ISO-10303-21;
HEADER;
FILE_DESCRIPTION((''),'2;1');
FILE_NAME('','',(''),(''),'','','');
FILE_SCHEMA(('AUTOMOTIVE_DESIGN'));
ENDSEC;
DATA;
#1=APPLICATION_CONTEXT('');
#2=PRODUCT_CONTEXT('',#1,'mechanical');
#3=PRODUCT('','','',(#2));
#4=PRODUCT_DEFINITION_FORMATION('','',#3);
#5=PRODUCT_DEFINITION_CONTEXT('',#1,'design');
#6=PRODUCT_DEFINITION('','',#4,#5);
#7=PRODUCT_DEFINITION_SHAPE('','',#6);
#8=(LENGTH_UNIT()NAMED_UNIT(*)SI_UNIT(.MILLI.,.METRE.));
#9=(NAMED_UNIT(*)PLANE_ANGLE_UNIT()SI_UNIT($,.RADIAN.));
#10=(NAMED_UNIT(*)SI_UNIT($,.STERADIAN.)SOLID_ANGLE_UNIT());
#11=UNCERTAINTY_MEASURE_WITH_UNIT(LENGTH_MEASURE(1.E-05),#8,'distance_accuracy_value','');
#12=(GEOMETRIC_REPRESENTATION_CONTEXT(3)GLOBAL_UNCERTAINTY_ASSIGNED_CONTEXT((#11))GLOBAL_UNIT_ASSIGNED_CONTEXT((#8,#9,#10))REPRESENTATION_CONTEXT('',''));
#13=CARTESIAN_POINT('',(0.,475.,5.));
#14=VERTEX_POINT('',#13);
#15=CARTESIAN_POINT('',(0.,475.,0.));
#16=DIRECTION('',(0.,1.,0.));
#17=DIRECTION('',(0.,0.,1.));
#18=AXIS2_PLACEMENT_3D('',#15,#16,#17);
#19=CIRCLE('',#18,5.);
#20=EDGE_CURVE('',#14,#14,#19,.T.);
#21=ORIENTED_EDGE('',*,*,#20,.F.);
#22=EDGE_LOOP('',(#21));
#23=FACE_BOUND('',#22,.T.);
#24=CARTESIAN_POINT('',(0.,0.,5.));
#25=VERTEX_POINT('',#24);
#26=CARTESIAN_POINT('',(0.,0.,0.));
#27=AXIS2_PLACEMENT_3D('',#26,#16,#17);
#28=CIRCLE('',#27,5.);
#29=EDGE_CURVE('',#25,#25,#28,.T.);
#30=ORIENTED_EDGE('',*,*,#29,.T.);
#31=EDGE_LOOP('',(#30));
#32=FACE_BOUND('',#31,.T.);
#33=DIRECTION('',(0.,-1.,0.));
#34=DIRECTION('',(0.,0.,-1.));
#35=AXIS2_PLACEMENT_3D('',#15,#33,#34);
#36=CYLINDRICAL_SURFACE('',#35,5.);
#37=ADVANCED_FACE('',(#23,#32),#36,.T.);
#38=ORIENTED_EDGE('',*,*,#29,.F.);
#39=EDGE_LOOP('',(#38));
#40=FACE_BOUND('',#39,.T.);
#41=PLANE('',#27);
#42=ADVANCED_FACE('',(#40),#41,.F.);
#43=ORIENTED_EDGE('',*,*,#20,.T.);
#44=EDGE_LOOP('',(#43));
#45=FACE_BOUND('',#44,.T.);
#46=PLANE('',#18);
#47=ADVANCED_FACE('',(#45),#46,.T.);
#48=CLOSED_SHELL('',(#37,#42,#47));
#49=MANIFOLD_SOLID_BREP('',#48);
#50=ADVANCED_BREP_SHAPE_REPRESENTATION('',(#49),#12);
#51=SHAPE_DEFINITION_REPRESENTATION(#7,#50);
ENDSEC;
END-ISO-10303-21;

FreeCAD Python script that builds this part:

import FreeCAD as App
import Part
import Sketcher

V = App.Vector
Q = App.Units.Quantity

doc = App.newDocument("Part")
body = doc.addObject("PartDesign::Body", "Body")

# Sketch on XZ plane
sketch1 = body.newObject("Sketcher::SketchObject", "Sketch")
sketch1.AttachmentSupport = (doc.getObject("XZ_Plane"), [""])
sketch1.MapMode = "FlatFace"
sketch1.addGeometry(Part.Circle(V(0, 0, 0), V(0, 0, 1), 5), False)
sketch1.addConstraint([
    Sketcher.Constraint("Coincident", 0, 3, -1, 1),
    Sketcher.Constraint("Diameter", 0, Q("10 mm")),
])
pad1 = body.newObject("PartDesign::Pad", "Pad")
pad1.Profile = sketch1
pad1.Length = 475
pad1.Reversed = True

doc.recompute()
